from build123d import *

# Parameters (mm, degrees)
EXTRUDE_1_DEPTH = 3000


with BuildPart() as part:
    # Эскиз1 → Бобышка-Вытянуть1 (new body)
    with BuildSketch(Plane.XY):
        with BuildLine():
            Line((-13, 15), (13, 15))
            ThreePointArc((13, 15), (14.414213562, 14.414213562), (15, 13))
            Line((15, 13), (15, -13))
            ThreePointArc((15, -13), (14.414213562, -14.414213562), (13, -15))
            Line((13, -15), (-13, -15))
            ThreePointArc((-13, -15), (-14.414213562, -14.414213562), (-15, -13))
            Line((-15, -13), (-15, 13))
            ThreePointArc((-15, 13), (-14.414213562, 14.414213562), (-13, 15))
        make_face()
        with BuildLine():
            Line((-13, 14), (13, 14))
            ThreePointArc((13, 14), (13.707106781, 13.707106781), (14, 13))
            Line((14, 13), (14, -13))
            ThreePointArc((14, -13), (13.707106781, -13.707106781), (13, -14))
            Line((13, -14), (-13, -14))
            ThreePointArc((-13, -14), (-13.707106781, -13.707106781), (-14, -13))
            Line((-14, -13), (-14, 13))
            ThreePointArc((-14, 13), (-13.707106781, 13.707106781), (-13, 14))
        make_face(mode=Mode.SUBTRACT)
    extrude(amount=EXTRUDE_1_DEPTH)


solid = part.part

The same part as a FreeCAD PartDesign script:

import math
import FreeCAD as App
import Part
import Sketcher

V = App.Vector

doc = App.newDocument("Part")
body = doc.addObject("PartDesign::Body", "Body")

sketch1 = doc.addObject("Sketcher::SketchObject", "Sketch")
body.addObject(sketch1)
sketch1.AttachmentSupport = (doc.XY_Plane, [""])
sketch1.MapMode = "FlatFace"
sketch1.addGeometry([
    Part.LineSegment(V(13, 15, 0), V(-13, 15, 0)),
    Part.ArcOfCircle(Part.Circle(V(-13, 13, 0), V(0, 0, 1), 2), math.radians(90), math.radians(180)),
    Part.LineSegment(V(-15, 13, 0), V(-15, -13, 0)),
    Part.ArcOfCircle(Part.Circle(V(-13, -13, 0), V(0, 0, 1), 2), math.radians(-180), math.radians(-90)),
    Part.LineSegment(V(-13, -15, 0), V(13, -15, 0)),
    Part.ArcOfCircle(Part.Circle(V(13, -13, 0), V(0, 0, 1), 2), math.radians(-90), math.radians(0)),
    Part.LineSegment(V(15, -13, 0), V(15, 13, 0)),
    Part.ArcOfCircle(Part.Circle(V(13, 13, 0), V(0, 0, 1), 2), math.radians(0), math.radians(90)),
    Part.LineSegment(V(-13, 14, 0), V(13, 14, 0)),
    Part.ArcOfCircle(Part.Circle(V(13, 13, 0), V(0, 0, 1), 1), math.radians(0), math.radians(90)),
    Part.LineSegment(V(14, 13, 0), V(14, -13, 0)),
    Part.ArcOfCircle(Part.Circle(V(13, -13, 0), V(0, 0, 1), 1), math.radians(-90), math.radians(0)),
    Part.LineSegment(V(13, -14, 0), V(-13, -14, 0)),
    Part.ArcOfCircle(Part.Circle(V(-13, -13, 0), V(0, 0, 1), 1), math.radians(-180), math.radians(-90)),
    Part.LineSegment(V(-14, -13, 0), V(-14, 13, 0)),
    Part.ArcOfCircle(Part.Circle(V(-13, 13, 0), V(0, 0, 1), 1), math.radians(90), math.radians(180)),
], False)
sketch1.addConstraint([
    Sketcher.Constraint("Tangent", 0, 2, 1, 1),
    Sketcher.Constraint("Tangent", 1, 2, 2, 1),
    Sketcher.Constraint("Tangent", 2, 2, 3, 1),
    Sketcher.Constraint("Tangent", 3, 2, 4, 1),
    Sketcher.Constraint("Tangent", 4, 2, 5, 1),
    Sketcher.Constraint("Tangent", 5, 2, 6, 1),
    Sketcher.Constraint("Tangent", 6, 2, 7, 1),
    Sketcher.Constraint("Tangent", 7, 2, 0, 1),
    Sketcher.Constraint("Tangent", 8, 2, 9, 2),
    Sketcher.Constraint("Tangent", 9, 1, 10, 1),
    Sketcher.Constraint("Tangent", 10, 2, 11, 2),
    Sketcher.Constraint("Tangent", 11, 1, 12, 1),
    Sketcher.Constraint("Tangent", 12, 2, 13, 2),
    Sketcher.Constraint("Tangent", 13, 1, 14, 1),
    Sketcher.Constraint("Tangent", 14, 2, 15, 2),
    Sketcher.Constraint("Tangent", 15, 1, 8, 1),
    Sketcher.Constraint("Horizontal", 0),
    Sketcher.Constraint("Vertical", 2),
    Sketcher.Constraint("Horizontal", 4),
    Sketcher.Constraint("Vertical", 6),
    Sketcher.Constraint("Horizontal", 8),
    Sketcher.Constraint("Vertical", 10),
    Sketcher.Constraint("Horizontal", 12),
    Sketcher.Constraint("Vertical", 14),
    Sketcher.Constraint("Coincident", 9, 3, 7, 3),
    Sketcher.Constraint("Coincident", 11, 3, 5, 3),
    Sketcher.Constraint("Coincident", 13, 3, 3, 3),
    Sketcher.Constraint("Equal", 1, 3),
    Sketcher.Constraint("Equal", 3, 5),
    Sketcher.Constraint("Equal", 5, 7),
    Sketcher.Constraint("Equal", 13, 15),
    Sketcher.Constraint("Symmetric", 1, 3, 5, 3, -1, 1),
    Sketcher.Constraint("Equal", 12, 2),
    Sketcher.Constraint("Radius", 1, 2.0),
    Sketcher.Constraint("Radius", 9, 1.0),
    Sketcher.Constraint("DistanceX", 0, 2, 0, 1, 26.0),
])
pad1 = doc.addObject("PartDesign::Pad", "Pad")
body.addObject(pad1)
pad1.Profile = sketch1
pad1.Length = 3000

doc.recompute()
